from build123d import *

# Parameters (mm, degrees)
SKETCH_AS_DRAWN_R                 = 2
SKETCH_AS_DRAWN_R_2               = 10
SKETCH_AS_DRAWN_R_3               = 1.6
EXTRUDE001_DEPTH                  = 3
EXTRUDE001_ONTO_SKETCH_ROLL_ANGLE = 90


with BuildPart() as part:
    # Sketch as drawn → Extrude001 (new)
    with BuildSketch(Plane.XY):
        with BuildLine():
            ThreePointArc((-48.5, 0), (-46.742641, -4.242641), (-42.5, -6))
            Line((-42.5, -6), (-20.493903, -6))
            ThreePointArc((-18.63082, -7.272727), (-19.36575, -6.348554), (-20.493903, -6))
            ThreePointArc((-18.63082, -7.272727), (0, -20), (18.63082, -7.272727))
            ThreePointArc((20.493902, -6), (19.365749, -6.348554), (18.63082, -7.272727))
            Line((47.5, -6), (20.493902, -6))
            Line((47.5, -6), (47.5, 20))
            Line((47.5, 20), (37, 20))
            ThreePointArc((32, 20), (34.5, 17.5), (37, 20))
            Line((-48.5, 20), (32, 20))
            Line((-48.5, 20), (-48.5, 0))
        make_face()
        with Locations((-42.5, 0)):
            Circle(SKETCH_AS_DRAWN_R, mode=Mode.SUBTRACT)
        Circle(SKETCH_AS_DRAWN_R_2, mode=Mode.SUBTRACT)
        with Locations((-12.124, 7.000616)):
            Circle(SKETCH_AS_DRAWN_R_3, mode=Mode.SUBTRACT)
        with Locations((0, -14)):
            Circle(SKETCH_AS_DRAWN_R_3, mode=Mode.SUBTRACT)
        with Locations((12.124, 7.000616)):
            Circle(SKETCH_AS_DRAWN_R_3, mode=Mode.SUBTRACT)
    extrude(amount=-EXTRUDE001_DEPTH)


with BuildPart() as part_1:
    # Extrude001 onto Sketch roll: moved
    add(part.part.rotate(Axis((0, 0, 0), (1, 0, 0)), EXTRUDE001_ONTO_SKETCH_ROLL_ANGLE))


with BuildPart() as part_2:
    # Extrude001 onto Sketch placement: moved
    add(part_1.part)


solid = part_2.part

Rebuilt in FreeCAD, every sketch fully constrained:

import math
import FreeCAD as App
import Part
import Sketcher
from FreeCAD import Vector

doc = App.newDocument("Part")
body = doc.addObject("PartDesign::Body", "Body")

sketch1 = doc.addObject("Sketcher::SketchObject", "Sketch")
body.addObject(sketch1)
sketch1.AttachmentSupport = (doc.XY_Plane, [""])
sketch1.MapMode = "FlatFace"
sketch1.addGeometry([
    Part.ArcOfCircle(Part.Circle(Vector(-42.500001, -0.000001, 0), Vector(0, 0, 1), 5.999999), math.radians(179.99999), math.radians(270.00001)),
    Part.LineSegment(Vector(-42.5, -6, 0), Vector(-20.493903, -6, 0)),
    Part.ArcOfCircle(Part.Circle(Vector(-20.493901, -7.999999, 0), Vector(0, 0, 1), 1.999999), math.radians(21.323683), math.radians(90.000044)),
    Part.ArcOfCircle(Part.Circle(Vector(0, 0, 0), Vector(0, 0, 1), 20), math.radians(-158.676314), math.radians(-21.323686)),
    Part.ArcOfCircle(Part.Circle(Vector(20.4939, -7.999997, 0), Vector(0, 0, 1), 1.999997), math.radians(89.999932), math.radians(158.676369)),
    Part.LineSegment(Vector(20.493902, -6, 0), Vector(47.5, -6, 0)),
    Part.LineSegment(Vector(47.5, -6, 0), Vector(47.5, 20, 0)),
    Part.LineSegment(Vector(47.5, 20, 0), Vector(37, 20, 0)),
    Part.ArcOfCircle(Part.Circle(Vector(34.5, 20, 0), Vector(0, 0, 1), 2.5), math.radians(180), math.radians(360)),
    Part.LineSegment(Vector(32, 20, 0), Vector(-48.5, 20, 0)),
    Part.LineSegment(Vector(-48.5, 20, 0), Vector(-48.5, 0, 0)),
    Part.Circle(Vector(0, -14, 0), Vector(0, 0, 1), 1.6),
    Part.Circle(Vector(-42.5, 0, 0), Vector(0, 0, 1), 2),
    Part.Circle(Vector(0, 0, 0), Vector(0, 0, 1), 10),
    Part.Circle(Vector(-12.124, 7.000616, 0), Vector(0, 0, 1), 1.6),
    Part.Circle(Vector(12.124, 7.000616, 0), Vector(0, 0, 1), 1.6),
], False)
sketch1.addConstraint([
    Sketcher.Constraint("Tangent", 0, 2, 1, 1),
    Sketcher.Constraint("Tangent", 1, 2, 2, 2),
    Sketcher.Constraint("Tangent", 2, 1, 3, 1),
    Sketcher.Constraint("Tangent", 3, 2, 4, 2),
    Sketcher.Constraint("Tangent", 4, 1, 5, 1),
    Sketcher.Constraint("Coincident", 5, 2, 6, 1),
    Sketcher.Constraint("Coincident", 6, 2, 7, 1),
    Sketcher.Constraint("Coincident", 7, 2, 8, 2),
    Sketcher.Constraint("Coincident", 8, 1, 9, 1),
    Sketcher.Constraint("Coincident", 9, 2, 10, 1),
    Sketcher.Constraint("Tangent", 10, 2, 0, 1),
    Sketcher.Constraint("Horizontal", 1),
    Sketcher.Constraint("Horizontal", 5),
    Sketcher.Constraint("Vertical", 6),
    Sketcher.Constraint("Horizontal", 7),
    Sketcher.Constraint("Horizontal", 9),
    Sketcher.Constraint("Vertical", 10),
    Sketcher.Constraint("Coincident", 3, 3, -1, 1),
    Sketcher.Constraint("Coincident", 13, 3, -1, 1),
    Sketcher.Constraint("Coincident", 12, 3, 0, 3),
    Sketcher.Constraint("Equal", 2, 12),
    Sketcher.Constraint("Equal", 11, 14),
    Sketcher.Constraint("Equal", 14, 15),
    Sketcher.Constraint("Symmetric", 2, 3, 4, 3, -2),
    Sketcher.Constraint("Symmetric", 14, 3, 15, 3, -2),
    Sketcher.Constraint("PointOnObject", 0, 3, -1),
    Sketcher.Constraint("PointOnObject", 11, 3, -2),
    Sketcher.Constraint("Horizontal", 8, 3, 6, 2),
    Sketcher.Constraint("Horizontal", 7, 2, 8, 1),
    Sketcher.Constraint("Diameter", 12, 4.0),
    Sketcher.Constraint("Diameter", 13, 20.0),
    Sketcher.Constraint("Radius", 0, 5.999999),
    Sketcher.Constraint("Radius", 3, 20.0),
    Sketcher.Constraint("Diameter", 11, 3.2),
    Sketcher.Constraint("Radius", 8, 2.5),
    Sketcher.Constraint("DistanceY", 6, 1, 6, 2, 26.0),
    Sketcher.Constraint("DistanceX", 7, 2, 7, 1, 10.5),
    Sketcher.Constraint("DistanceX", 9, 2, 9, 1, 80.5),
    Sketcher.Constraint("DistanceY", 11, 3, -1, 1, 14.0),
    Sketcher.Constraint("DistanceX", -1, 1, 7, 2, 37.0),
    Sketcher.Constraint("DistanceX", 14, 3, -1, 1, 12.124),
    Sketcher.Constraint("DistanceY", -1, 1, 14, 3, 7.000616),
])
pad1 = doc.addObject("PartDesign::Pad", "Pad")
body.addObject(pad1)
pad1.Profile = sketch1
pad1.Length = 3
pad1.Reversed = True
body2 = doc.addObject("PartDesign::Body", "Body001")
doc.recompute()

body.Placement = App.Placement(Vector(0, 0, 0), App.Rotation(Vector(1, 0, 0), 90))
boolean = doc.addObject("PartDesign::Boolean", "Boolean")
body2.addObject(boolean)
boolean.Type = "Fuse"
boolean.addObjects([body])

doc.recompute()
